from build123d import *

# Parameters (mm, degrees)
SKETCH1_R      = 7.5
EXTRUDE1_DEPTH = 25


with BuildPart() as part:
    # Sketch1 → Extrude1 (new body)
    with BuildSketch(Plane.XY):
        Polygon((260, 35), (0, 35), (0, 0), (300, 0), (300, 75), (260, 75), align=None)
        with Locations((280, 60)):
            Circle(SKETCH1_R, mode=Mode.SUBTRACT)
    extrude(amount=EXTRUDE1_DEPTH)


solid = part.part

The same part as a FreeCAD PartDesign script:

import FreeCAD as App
import Part
import Sketcher

doc = App.newDocument("Part")
body = doc.addObject("PartDesign::Body", "Body")

# Sketch on XY plane
sketch1 = body.newObject("Sketcher::SketchObject", "Sketch")
sketch1.AttachmentSupport = (doc.getObject("XY_Plane"), [""])
sketch1.MapMode = "FlatFace"
sketch1.addGeometry([
    Part.LineSegment(App.Vector(260, 35, 0), App.Vector(0, 35, 0)),  # 0
    Part.LineSegment(App.Vector(0, 35, 0), App.Vector(0, 0, 0)),  # 1
    Part.LineSegment(App.Vector(0, 0, 0), App.Vector(300, 0, 0)),  # 2
    Part.LineSegment(App.Vector(300, 0, 0), App.Vector(300, 75, 0)),  # 3
    Part.LineSegment(App.Vector(300, 75, 0), App.Vector(260, 75, 0)),  # 4
    Part.LineSegment(App.Vector(260, 75, 0), App.Vector(260, 35, 0)),  # 5
    Part.Circle(App.Vector(280, 60, 0), App.Vector(0, 0, 1), 8),  # 6
], False)
sketch1.addConstraint([
    Sketcher.Constraint("Coincident", 0, 2, 1, 1),
    Sketcher.Constraint("Coincident", 1, 2, 2, 1),
    Sketcher.Constraint("Coincident", 2, 2, 3, 1),
    Sketcher.Constraint("Coincident", 3, 2, 4, 1),
    Sketcher.Constraint("Coincident", 4, 2, 5, 1),
    Sketcher.Constraint("Coincident", 5, 2, 0, 1),
    Sketcher.Constraint("Horizontal", 0),
    Sketcher.Constraint("Vertical", 1),
    Sketcher.Constraint("Horizontal", 2),
    Sketcher.Constraint("Vertical", 3),
    Sketcher.Constraint("Horizontal", 4),
    Sketcher.Constraint("Vertical", 5),
    Sketcher.Constraint("Coincident", 1, 2, -1, 1),
    Sketcher.Constraint("Equal", 4, 5),
    Sketcher.Constraint("Diameter", 6, 15.0),
    Sketcher.Constraint("DistanceX", 0, 2, 0, 1, 260.0),
    Sketcher.Constraint("DistanceX", 2, 1, 2, 2, 300.0),
    Sketcher.Constraint("DistanceY", 1, 2, 1, 1, 35.0),
    Sketcher.Constraint("DistanceX", -1, 1, 6, 3, 280.0),
    Sketcher.Constraint("DistanceY", -1, 1, 6, 3, 60.0),
])
pad1 = body.newObject("PartDesign::Pad", "Pad")
pad1.Profile = sketch1
pad1.Length = 25

doc.recompute()
